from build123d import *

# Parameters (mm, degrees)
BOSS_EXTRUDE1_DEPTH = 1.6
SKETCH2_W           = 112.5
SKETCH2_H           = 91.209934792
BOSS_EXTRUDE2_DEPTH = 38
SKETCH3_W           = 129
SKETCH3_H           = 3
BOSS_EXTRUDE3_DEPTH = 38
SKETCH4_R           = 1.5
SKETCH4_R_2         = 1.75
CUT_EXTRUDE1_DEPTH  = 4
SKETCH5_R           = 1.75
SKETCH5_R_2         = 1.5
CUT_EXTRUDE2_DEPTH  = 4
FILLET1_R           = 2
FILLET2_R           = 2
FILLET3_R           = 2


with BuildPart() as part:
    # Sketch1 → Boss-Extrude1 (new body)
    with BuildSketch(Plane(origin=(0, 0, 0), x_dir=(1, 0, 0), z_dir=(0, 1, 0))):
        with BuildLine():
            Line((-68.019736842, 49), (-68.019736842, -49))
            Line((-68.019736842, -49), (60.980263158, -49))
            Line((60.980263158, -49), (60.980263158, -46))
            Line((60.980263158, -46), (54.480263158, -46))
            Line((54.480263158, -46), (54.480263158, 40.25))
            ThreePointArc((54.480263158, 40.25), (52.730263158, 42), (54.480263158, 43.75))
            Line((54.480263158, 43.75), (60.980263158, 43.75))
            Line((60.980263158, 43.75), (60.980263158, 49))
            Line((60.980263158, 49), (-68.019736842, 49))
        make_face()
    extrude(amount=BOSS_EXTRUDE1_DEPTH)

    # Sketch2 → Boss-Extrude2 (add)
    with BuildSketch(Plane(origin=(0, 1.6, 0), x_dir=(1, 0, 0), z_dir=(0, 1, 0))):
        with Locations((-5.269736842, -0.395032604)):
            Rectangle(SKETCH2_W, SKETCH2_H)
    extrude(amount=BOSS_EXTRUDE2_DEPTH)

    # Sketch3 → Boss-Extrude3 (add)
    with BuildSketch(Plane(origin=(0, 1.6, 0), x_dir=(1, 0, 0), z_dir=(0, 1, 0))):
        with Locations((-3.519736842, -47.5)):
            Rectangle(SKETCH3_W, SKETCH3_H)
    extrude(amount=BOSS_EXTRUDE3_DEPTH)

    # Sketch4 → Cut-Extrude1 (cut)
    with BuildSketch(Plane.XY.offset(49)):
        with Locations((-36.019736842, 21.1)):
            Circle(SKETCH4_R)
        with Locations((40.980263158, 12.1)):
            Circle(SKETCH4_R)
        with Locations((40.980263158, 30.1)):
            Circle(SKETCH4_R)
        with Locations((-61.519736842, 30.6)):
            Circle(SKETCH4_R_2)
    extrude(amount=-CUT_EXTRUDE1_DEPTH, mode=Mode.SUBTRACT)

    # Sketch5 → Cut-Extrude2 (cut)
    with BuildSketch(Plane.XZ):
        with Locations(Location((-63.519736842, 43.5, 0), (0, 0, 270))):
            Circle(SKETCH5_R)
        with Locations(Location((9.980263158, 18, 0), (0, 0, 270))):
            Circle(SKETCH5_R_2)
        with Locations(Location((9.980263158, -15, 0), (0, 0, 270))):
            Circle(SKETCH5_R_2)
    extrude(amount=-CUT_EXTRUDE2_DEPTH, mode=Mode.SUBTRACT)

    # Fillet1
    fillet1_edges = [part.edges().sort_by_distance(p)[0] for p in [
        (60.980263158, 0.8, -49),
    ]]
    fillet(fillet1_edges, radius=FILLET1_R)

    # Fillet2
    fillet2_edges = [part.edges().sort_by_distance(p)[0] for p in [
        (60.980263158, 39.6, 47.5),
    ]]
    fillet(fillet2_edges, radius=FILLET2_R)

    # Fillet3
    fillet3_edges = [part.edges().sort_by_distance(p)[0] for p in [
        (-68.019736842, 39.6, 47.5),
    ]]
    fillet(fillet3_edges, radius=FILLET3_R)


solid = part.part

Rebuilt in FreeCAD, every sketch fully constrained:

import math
import FreeCAD as App
import Part
import Sketcher
from FreeCAD import Vector
Q = App.Units.Quantity


def edges_at(feature, points):
    """Names of the edges that pass closest to the given points."""
    edges = feature.Shape.Edges
    near = lambda p: min(range(len(edges)), key=lambda i: edges[i].distToShape(Part.Vertex(*p))[0])
    return sorted({f"Edge{near(p) + 1}" for p in points})

doc = App.newDocument("Part")
body = doc.addObject("PartDesign::Body", "Body")

# Sketch on XZ plane
sketch1 = body.newObject("Sketcher::SketchObject", "Sketch")
sketch1.AttachmentSupport = (doc.getObject("XZ_Plane"), [""])
sketch1.MapMode = "FlatFace"
sketch1.addGeometry([
    Part.LineSegment(Vector(-68, -49, 0), Vector(-68, 49, 0)),  # 0
    Part.LineSegment(Vector(-68, 49, 0), Vector(61, 49, 0)),  # 1
    Part.LineSegment(Vector(61, 49, 0), Vector(61, 46, 0)),  # 2
    Part.LineSegment(Vector(61, 46, 0), Vector(54.5, 46, 0)),  # 3
    Part.LineSegment(Vector(54.5, 46, 0), Vector(54.5, -40.2, 0)),  # 4
    Part.ArcOfCircle(Part.Circle(Vector(54.5, -42, 0), Vector(0, 0, 1), 1.8), math.radians(90), math.radians(270)),  # 5
    Part.LineSegment(Vector(54.5, -43.8, 0), Vector(61, -43.8, 0)),  # 6
    Part.LineSegment(Vector(61, -43.8, 0), Vector(61, -49, 0)),  # 7
    Part.LineSegment(Vector(61, -49, 0), Vector(-68, -49, 0)),  # 8
], False)
sketch1.addConstraint([
    Sketcher.Constraint("Coincident", 0, 2, 1, 1),
    Sketcher.Constraint("Coincident", 1, 2, 2, 1),
    Sketcher.Constraint("Coincident", 2, 2, 3, 1),
    Sketcher.Constraint("Coincident", 3, 2, 4, 1),
    Sketcher.Constraint("Coincident", 4, 2, 5, 1),
    Sketcher.Constraint("Tangent", 5, 2, 6, 1),
    Sketcher.Constraint("Coincident", 6, 2, 7, 1),
    Sketcher.Constraint("Coincident", 7, 2, 8, 1),
    Sketcher.Constraint("Coincident", 8, 2, 0, 1),
    Sketcher.Constraint("Vertical", 0),
    Sketcher.Constraint("Horizontal", 1),
    Sketcher.Constraint("Vertical", 2),
    Sketcher.Constraint("Horizontal", 3),
    Sketcher.Constraint("Vertical", 4),
    Sketcher.Constraint("Horizontal", 6),
    Sketcher.Constraint("Vertical", 7),
    Sketcher.Constraint("Horizontal", 8),
    Sketcher.Constraint("Symmetric", 1, 2, 7, 2, -1),
    Sketcher.Constraint("Vertical", 5, 3, 3, 2),
    Sketcher.Constraint("DistanceX", 1, 1, 1, 2, Q("129 mm")),
    Sketcher.Constraint("DistanceY", 0, 1, 0, 2, Q("98 mm")),
    Sketcher.Constraint("DistanceY", 2, 2, 2, 1, Q("3 mm")),
    Sketcher.Constraint("Radius", 5, Q("1.75 mm")),
    Sketcher.Constraint("DistanceX", 3, 2, 3, 1, Q("6.5 mm")),
    Sketcher.Constraint("DistanceY", 5, 3, -1, 1, Q("42 mm")),
    Sketcher.Constraint("DistanceX", -1, 1, 5, 3, Q("54.480263 mm")),
])
pad1 = body.newObject("PartDesign::Pad", "Pad")
pad1.Profile = sketch1
pad1.Length = 1.6
pad1.Reversed = True

# Sketch on XZ plane
sketch2 = body.newObject("Sketcher::SketchObject", "Sketch001")
sketch2.AttachmentSupport = (doc.getObject("XZ_Plane"), [""])
sketch2.MapMode = "FlatFace"
sketch2.AttachmentOffset = App.Placement(Vector(0, 0, -1.6), App.Rotation())
sketch2.addGeometry([
    Part.LineSegment(Vector(-62, -45, 0), Vector(-62, 46, 0)),
    Part.LineSegment(Vector(-62, 46, 0), Vector(51, 46, 0)),
    Part.LineSegment(Vector(51, 46, 0), Vector(51, -45, 0)),
    Part.LineSegment(Vector(51, -45, 0), Vector(-62, -45, 0)),
], False)
sketch2.addConstraint([
    Sketcher.Constraint("Coincident", 0, 2, 1, 1),
    Sketcher.Constraint("Coincident", 1, 2, 2, 1),
    Sketcher.Constraint("Coincident", 2, 2, 3, 1),
    Sketcher.Constraint("Coincident", 3, 2, 0, 1),
    Sketcher.Constraint("Vertical", 0),
    Sketcher.Constraint("Horizontal", 1),
    Sketcher.Constraint("Vertical", 2),
    Sketcher.Constraint("Horizontal", 3),
    Sketcher.Constraint("DistanceX", 1, 1, 1, 2, Q("112.5 mm")),
    Sketcher.Constraint("DistanceY", -1, 1, 0, 2, Q("46 mm")),
    Sketcher.Constraint("DistanceY", 0, 1, 0, 2, Q("91.209935 mm")),
    Sketcher.Constraint("DistanceX", 0, 2, -1, 1, Q("61.519737 mm")),
])
pad2 = body.newObject("PartDesign::Pad", "Pad001")
pad2.Profile = sketch2
pad2.Length = 38
pad2.Reversed = True

# Sketch on XZ plane
sketch3 = body.newObject("Sketcher::SketchObject", "Sketch002")
sketch3.AttachmentSupport = (doc.getObject("XZ_Plane"), [""])
sketch3.MapMode = "FlatFace"
sketch3.AttachmentOffset = App.Placement(Vector(0, 0, -1.6), App.Rotation())
sketch3.addGeometry([
    Part.LineSegment(Vector(-68, 46, 0), Vector(-68, 49, 0)),
    Part.LineSegment(Vector(-68, 49, 0), Vector(61, 49, 0)),
    Part.LineSegment(Vector(61, 49, 0), Vector(61, 46, 0)),
    Part.LineSegment(Vector(61, 46, 0), Vector(-68, 46, 0)),
], False)
sketch3.addConstraint([
    Sketcher.Constraint("Coincident", 0, 2, 1, 1),
    Sketcher.Constraint("Coincident", 1, 2, 2, 1),
    Sketcher.Constraint("Coincident", 2, 2, 3, 1),
    Sketcher.Constraint("Coincident", 3, 2, 0, 1),
    Sketcher.Constraint("Vertical", 0),
    Sketcher.Constraint("Horizontal", 1),
    Sketcher.Constraint("Vertical", 2),
    Sketcher.Constraint("Horizontal", 3),
    Sketcher.Constraint("DistanceX", 1, 1, 1, 2, Q("129 mm")),
    Sketcher.Constraint("DistanceY", 0, 1, 0, 2, Q("3 mm")),
    Sketcher.Constraint("DistanceY", -1, 1, 0, 2, Q("49 mm")),
    Sketcher.Constraint("DistanceX", 0, 2, -1, 1, Q("68.019737 mm")),
])
pad3 = body.newObject("PartDesign::Pad", "Pad002")
pad3.Profile = sketch3
pad3.Length = 38
pad3.Reversed = True

# Sketch on XY plane
sketch4 = body.newObject("Sketcher::SketchObject", "Sketch003")
sketch4.AttachmentSupport = (doc.getObject("XY_Plane"), [""])
sketch4.MapMode = "FlatFace"
sketch4.AttachmentOffset = App.Placement(Vector(0, 0, 49), App.Rotation())
sketch4.addGeometry([
    Part.Circle(Vector(-36, 21.1, 0), Vector(0, 0, 1), 1.5),
    Part.Circle(Vector(41, 12.1, 0), Vector(0, 0, 1), 1.5),
    Part.Circle(Vector(41, 30.1, 0), Vector(0, 0, 1), 1.5),
    Part.Circle(Vector(-61.5, 30.6, 0), Vector(0, 0, 1), 1.8),
], False)
sketch4.addConstraint([
    Sketcher.Constraint("Equal", 0, 1),
    Sketcher.Constraint("Equal", 1, 2),
    Sketcher.Constraint("Vertical", 1, 3, 2, 3),
    Sketcher.Constraint("Diameter", 0, Q("3 mm")),
    Sketcher.Constraint("Diameter", 3, Q("3.5 mm")),
    Sketcher.Constraint("DistanceX", 0, 3, 1, 3, Q("77 mm")),
    Sketcher.Constraint("DistanceY", 1, 3, 0, 3, Q("9 mm")),
    Sketcher.Constraint("DistanceY", 1, 3, 2, 3, Q("18 mm")),
    Sketcher.Constraint("DistanceY", -1, 1, 0, 3, Q("21.1 mm")),
    Sketcher.Constraint("DistanceY", -1, 1, 3, 3, Q("30.6 mm")),
    Sketcher.Constraint("DistanceX", 3, 3, 0, 3, Q("25.5 mm")),
    Sketcher.Constraint("DistanceX", 0, 3, -1, 1, Q("36.019737 mm")),
])
pocket1 = body.newObject("PartDesign::Pocket", "Pocket")
pocket1.Profile = sketch4
pocket1.Length = 4

# Sketch on XZ plane
sketch5 = body.newObject("Sketcher::SketchObject", "Sketch004")
sketch5.AttachmentSupport = (doc.getObject("XZ_Plane"), [""])
sketch5.MapMode = "FlatFace"
sketch5.addGeometry([
    Part.Circle(Vector(-63.5, 43.5, 0), Vector(0, 0, 1), 1.8),
    Part.Circle(Vector(10, 18, 0), Vector(0, 0, 1), 1.5),
    Part.Circle(Vector(10, -15, 0), Vector(0, 0, 1), 1.5),
], False)
sketch5.addConstraint([
    Sketcher.Constraint("Equal", 1, 2),
    Sketcher.Constraint("Vertical", 1, 3, 2, 3),
    Sketcher.Constraint("Diameter", 1, Q("3 mm")),
    Sketcher.Constraint("Diameter", 0, Q("3.5 mm")),
    Sketcher.Constraint("DistanceY", -1, 1, 1, 3, Q("18 mm")),
    Sketcher.Constraint("DistanceY", 2, 3, -1, 1, Q("15 mm")),
    Sketcher.Constraint("DistanceY", -1, 1, 0, 3, Q("43.5 mm")),
    Sketcher.Constraint("DistanceX", 0, 3, 1, 3, Q("73.5 mm")),
    Sketcher.Constraint("DistanceX", 0, 3, -1, 1, Q("63.519737 mm")),
])
pocket2 = body.newObject("PartDesign::Pocket", "Pocket001")
pocket2.Profile = sketch5
pocket2.Length = 4
doc.recompute()

fillet = body.newObject("PartDesign::Fillet", "Fillet")
fillet.Base = (pocket2, edges_at(pocket2, [(60.98, 0.8, -49)]))
fillet.Radius = 2
doc.recompute()

fillet2 = body.newObject("PartDesign::Fillet", "Fillet001")
fillet2.Base = (fillet, edges_at(fillet, [(60.98, 39.6, 47.5)]))
fillet2.Radius = 2
doc.recompute()

fillet3 = body.newObject("PartDesign::Fillet", "Fillet002")
fillet3.Base = (fillet2, edges_at(fillet2, [(-68.02, 39.6, 47.5)]))
fillet3.Radius = 2

doc.recompute()
